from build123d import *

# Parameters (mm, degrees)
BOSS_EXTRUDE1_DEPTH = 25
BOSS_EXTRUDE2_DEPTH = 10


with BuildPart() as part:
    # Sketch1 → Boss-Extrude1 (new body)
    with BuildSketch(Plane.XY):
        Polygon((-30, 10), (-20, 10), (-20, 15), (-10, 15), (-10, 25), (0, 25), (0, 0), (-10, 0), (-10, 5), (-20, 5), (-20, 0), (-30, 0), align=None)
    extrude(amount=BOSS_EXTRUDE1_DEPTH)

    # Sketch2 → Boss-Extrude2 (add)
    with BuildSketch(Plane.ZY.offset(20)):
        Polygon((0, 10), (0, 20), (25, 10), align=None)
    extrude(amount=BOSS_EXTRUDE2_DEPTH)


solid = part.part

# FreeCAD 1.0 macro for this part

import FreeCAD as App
import Part
import Sketcher

V = App.Vector

doc = App.newDocument("Part")
params = doc.addObject("Spreadsheet::Sheet", "Params")
for row, (alias, value) in enumerate([
    ("sketch1_width", "10 mm"),
    ("sketch1_height", "5 mm"),
    ("pad1_length", "25 mm"),
    ("sketch2_width", "10 mm"),
    ("sketch2_height", "25 mm"),
    ("pad2_length", "10 mm"),
], start=1):
    params.set(f"A{row}", alias)
    params.set(f"B{row}", "=" + value)
    params.setAlias(f"B{row}", alias)

body = doc.addObject("PartDesign::Body", "Body")

# Sketch on XY plane
sketch1 = body.newObject("Sketcher::SketchObject", "Sketch")
sketch1.AttachmentSupport = (doc.getObject("XY_Plane"), [""])
sketch1.MapMode = "FlatFace"
sketch1.addGeometry([
    Part.LineSegment(V(-20, 10, 0), V(-30, 10, 0)),  # 0
    Part.LineSegment(V(-30, 10, 0), V(-30, 0, 0)),  # 1
    Part.LineSegment(V(-30, 0, 0), V(-20, 0, 0)),  # 2
    Part.LineSegment(V(-20, 0, 0), V(-20, 5, 0)),  # 3
    Part.LineSegment(V(-20, 5, 0), V(-10, 5, 0)),  # 4
    Part.LineSegment(V(-10, 5, 0), V(-10, 0, 0)),  # 5
    Part.LineSegment(V(-10, 0, 0), V(0, 0, 0)),  # 6
    Part.LineSegment(V(0, 0, 0), V(0, 25, 0)),  # 7
    Part.LineSegment(V(0, 25, 0), V(-10, 25, 0)),  # 8
    Part.LineSegment(V(-10, 25, 0), V(-10, 15, 0)),  # 9
    Part.LineSegment(V(-10, 15, 0), V(-20, 15, 0)),  # 10
    Part.LineSegment(V(-20, 15, 0), V(-20, 10, 0)),  # 11
], False)
sketch1.addConstraint([
    Sketcher.Constraint("Coincident", 0, 2, 1, 1),
    Sketcher.Constraint("Coincident", 1, 2, 2, 1),
    Sketcher.Constraint("Coincident", 2, 2, 3, 1),
    Sketcher.Constraint("Coincident", 3, 2, 4, 1),
    Sketcher.Constraint("Coincident", 4, 2, 5, 1),
    Sketcher.Constraint("Coincident", 5, 2, 6, 1),
    Sketcher.Constraint("Coincident", 6, 2, 7, 1),
    Sketcher.Constraint("Coincident", 7, 2, 8, 1),
    Sketcher.Constraint("Coincident", 8, 2, 9, 1),
    Sketcher.Constraint("Coincident", 9, 2, 10, 1),
    Sketcher.Constraint("Coincident", 10, 2, 11, 1),
    Sketcher.Constraint("Coincident", 11, 2, 0, 1),
    Sketcher.Constraint("Horizontal", 0),
    Sketcher.Constraint("Vertical", 1),
    Sketcher.Constraint("Horizontal", 2),
    Sketcher.Constraint("Vertical", 3),
    Sketcher.Constraint("Horizontal", 4),
    Sketcher.Constraint("Vertical", 5),
    Sketcher.Constraint("Horizontal", 6),
    Sketcher.Constraint("Vertical", 7),
    Sketcher.Constraint("Horizontal", 8),
    Sketcher.Constraint("Vertical", 9),
    Sketcher.Constraint("Horizontal", 10),
    Sketcher.Constraint("Vertical", 11),
    Sketcher.Constraint("Coincident", 6, 2, -1, 1),
    Sketcher.Constraint("PointOnObject", 1, 2, -1),
    Sketcher.Constraint("Vertical", 5, 2, 8, 2),
    Sketcher.Constraint("Vertical", 3, 2, 10, 2),
    Sketcher.Constraint("Equal", 2, 4),
    Sketcher.Constraint("Equal", 4, 6),
    Sketcher.Constraint("Equal", 10, 1),
    Sketcher.Constraint("Equal", 1, 9),
    Sketcher.Constraint("Equal", 5, 11),
    Sketcher.Constraint("DistanceX", 0, 2, 0, 1, 10.0),
    Sketcher.Constraint("DistanceY", 3, 1, 3, 2, 5.0),
])
sketch1.setExpression("Constraints[33]", "Params.sketch1_width")
sketch1.setExpression("Constraints[34]", "Params.sketch1_height")
pad1 = body.newObject("PartDesign::Pad", "Pad")
pad1.Profile = sketch1
pad1.setExpression("Length", "Params.pad1_length")

# Sketch on YZ plane
sketch2 = body.newObject("Sketcher::SketchObject", "Sketch001")
sketch2.AttachmentSupport = (doc.getObject("YZ_Plane"), [""])
sketch2.MapMode = "FlatFace"
sketch2.AttachmentOffset = App.Placement(V(0, 0, -20), App.Rotation())
sketch2.addGeometry([
    Part.LineSegment(V(20, 0, 0), V(10, 0, 0)),
    Part.LineSegment(V(10, 0, 0), V(10, 25, 0)),
    Part.LineSegment(V(10, 25, 0), V(20, 0, 0)),
], False)
sketch2.addConstraint([
    Sketcher.Constraint("Coincident", 0, 2, 1, 1),
    Sketcher.Constraint("Coincident", 1, 2, 2, 1),
    Sketcher.Constraint("Coincident", 2, 2, 0, 1),
    Sketcher.Constraint("Horizontal", 0),
    Sketcher.Constraint("Vertical", 1),
    Sketcher.Constraint("PointOnObject", 0, 2, -1),
    Sketcher.Constraint("DistanceX", 0, 2, 0, 1, 10.0),
    Sketcher.Constraint("DistanceY", 1, 1, 1, 2, 25.0),
    Sketcher.Constraint("DistanceX", -1, 1, 0, 2, 10.0),
])
sketch2.setExpression("Constraints[6]", "Params.sketch2_width")
sketch2.setExpression("Constraints[7]", "Params.sketch2_height")
pad2 = body.newObject("PartDesign::Pad", "Pad001")
pad2.Profile = sketch2
pad2.setExpression("Length", "Params.pad2_length")
pad2.Reversed = True

doc.recompute()
